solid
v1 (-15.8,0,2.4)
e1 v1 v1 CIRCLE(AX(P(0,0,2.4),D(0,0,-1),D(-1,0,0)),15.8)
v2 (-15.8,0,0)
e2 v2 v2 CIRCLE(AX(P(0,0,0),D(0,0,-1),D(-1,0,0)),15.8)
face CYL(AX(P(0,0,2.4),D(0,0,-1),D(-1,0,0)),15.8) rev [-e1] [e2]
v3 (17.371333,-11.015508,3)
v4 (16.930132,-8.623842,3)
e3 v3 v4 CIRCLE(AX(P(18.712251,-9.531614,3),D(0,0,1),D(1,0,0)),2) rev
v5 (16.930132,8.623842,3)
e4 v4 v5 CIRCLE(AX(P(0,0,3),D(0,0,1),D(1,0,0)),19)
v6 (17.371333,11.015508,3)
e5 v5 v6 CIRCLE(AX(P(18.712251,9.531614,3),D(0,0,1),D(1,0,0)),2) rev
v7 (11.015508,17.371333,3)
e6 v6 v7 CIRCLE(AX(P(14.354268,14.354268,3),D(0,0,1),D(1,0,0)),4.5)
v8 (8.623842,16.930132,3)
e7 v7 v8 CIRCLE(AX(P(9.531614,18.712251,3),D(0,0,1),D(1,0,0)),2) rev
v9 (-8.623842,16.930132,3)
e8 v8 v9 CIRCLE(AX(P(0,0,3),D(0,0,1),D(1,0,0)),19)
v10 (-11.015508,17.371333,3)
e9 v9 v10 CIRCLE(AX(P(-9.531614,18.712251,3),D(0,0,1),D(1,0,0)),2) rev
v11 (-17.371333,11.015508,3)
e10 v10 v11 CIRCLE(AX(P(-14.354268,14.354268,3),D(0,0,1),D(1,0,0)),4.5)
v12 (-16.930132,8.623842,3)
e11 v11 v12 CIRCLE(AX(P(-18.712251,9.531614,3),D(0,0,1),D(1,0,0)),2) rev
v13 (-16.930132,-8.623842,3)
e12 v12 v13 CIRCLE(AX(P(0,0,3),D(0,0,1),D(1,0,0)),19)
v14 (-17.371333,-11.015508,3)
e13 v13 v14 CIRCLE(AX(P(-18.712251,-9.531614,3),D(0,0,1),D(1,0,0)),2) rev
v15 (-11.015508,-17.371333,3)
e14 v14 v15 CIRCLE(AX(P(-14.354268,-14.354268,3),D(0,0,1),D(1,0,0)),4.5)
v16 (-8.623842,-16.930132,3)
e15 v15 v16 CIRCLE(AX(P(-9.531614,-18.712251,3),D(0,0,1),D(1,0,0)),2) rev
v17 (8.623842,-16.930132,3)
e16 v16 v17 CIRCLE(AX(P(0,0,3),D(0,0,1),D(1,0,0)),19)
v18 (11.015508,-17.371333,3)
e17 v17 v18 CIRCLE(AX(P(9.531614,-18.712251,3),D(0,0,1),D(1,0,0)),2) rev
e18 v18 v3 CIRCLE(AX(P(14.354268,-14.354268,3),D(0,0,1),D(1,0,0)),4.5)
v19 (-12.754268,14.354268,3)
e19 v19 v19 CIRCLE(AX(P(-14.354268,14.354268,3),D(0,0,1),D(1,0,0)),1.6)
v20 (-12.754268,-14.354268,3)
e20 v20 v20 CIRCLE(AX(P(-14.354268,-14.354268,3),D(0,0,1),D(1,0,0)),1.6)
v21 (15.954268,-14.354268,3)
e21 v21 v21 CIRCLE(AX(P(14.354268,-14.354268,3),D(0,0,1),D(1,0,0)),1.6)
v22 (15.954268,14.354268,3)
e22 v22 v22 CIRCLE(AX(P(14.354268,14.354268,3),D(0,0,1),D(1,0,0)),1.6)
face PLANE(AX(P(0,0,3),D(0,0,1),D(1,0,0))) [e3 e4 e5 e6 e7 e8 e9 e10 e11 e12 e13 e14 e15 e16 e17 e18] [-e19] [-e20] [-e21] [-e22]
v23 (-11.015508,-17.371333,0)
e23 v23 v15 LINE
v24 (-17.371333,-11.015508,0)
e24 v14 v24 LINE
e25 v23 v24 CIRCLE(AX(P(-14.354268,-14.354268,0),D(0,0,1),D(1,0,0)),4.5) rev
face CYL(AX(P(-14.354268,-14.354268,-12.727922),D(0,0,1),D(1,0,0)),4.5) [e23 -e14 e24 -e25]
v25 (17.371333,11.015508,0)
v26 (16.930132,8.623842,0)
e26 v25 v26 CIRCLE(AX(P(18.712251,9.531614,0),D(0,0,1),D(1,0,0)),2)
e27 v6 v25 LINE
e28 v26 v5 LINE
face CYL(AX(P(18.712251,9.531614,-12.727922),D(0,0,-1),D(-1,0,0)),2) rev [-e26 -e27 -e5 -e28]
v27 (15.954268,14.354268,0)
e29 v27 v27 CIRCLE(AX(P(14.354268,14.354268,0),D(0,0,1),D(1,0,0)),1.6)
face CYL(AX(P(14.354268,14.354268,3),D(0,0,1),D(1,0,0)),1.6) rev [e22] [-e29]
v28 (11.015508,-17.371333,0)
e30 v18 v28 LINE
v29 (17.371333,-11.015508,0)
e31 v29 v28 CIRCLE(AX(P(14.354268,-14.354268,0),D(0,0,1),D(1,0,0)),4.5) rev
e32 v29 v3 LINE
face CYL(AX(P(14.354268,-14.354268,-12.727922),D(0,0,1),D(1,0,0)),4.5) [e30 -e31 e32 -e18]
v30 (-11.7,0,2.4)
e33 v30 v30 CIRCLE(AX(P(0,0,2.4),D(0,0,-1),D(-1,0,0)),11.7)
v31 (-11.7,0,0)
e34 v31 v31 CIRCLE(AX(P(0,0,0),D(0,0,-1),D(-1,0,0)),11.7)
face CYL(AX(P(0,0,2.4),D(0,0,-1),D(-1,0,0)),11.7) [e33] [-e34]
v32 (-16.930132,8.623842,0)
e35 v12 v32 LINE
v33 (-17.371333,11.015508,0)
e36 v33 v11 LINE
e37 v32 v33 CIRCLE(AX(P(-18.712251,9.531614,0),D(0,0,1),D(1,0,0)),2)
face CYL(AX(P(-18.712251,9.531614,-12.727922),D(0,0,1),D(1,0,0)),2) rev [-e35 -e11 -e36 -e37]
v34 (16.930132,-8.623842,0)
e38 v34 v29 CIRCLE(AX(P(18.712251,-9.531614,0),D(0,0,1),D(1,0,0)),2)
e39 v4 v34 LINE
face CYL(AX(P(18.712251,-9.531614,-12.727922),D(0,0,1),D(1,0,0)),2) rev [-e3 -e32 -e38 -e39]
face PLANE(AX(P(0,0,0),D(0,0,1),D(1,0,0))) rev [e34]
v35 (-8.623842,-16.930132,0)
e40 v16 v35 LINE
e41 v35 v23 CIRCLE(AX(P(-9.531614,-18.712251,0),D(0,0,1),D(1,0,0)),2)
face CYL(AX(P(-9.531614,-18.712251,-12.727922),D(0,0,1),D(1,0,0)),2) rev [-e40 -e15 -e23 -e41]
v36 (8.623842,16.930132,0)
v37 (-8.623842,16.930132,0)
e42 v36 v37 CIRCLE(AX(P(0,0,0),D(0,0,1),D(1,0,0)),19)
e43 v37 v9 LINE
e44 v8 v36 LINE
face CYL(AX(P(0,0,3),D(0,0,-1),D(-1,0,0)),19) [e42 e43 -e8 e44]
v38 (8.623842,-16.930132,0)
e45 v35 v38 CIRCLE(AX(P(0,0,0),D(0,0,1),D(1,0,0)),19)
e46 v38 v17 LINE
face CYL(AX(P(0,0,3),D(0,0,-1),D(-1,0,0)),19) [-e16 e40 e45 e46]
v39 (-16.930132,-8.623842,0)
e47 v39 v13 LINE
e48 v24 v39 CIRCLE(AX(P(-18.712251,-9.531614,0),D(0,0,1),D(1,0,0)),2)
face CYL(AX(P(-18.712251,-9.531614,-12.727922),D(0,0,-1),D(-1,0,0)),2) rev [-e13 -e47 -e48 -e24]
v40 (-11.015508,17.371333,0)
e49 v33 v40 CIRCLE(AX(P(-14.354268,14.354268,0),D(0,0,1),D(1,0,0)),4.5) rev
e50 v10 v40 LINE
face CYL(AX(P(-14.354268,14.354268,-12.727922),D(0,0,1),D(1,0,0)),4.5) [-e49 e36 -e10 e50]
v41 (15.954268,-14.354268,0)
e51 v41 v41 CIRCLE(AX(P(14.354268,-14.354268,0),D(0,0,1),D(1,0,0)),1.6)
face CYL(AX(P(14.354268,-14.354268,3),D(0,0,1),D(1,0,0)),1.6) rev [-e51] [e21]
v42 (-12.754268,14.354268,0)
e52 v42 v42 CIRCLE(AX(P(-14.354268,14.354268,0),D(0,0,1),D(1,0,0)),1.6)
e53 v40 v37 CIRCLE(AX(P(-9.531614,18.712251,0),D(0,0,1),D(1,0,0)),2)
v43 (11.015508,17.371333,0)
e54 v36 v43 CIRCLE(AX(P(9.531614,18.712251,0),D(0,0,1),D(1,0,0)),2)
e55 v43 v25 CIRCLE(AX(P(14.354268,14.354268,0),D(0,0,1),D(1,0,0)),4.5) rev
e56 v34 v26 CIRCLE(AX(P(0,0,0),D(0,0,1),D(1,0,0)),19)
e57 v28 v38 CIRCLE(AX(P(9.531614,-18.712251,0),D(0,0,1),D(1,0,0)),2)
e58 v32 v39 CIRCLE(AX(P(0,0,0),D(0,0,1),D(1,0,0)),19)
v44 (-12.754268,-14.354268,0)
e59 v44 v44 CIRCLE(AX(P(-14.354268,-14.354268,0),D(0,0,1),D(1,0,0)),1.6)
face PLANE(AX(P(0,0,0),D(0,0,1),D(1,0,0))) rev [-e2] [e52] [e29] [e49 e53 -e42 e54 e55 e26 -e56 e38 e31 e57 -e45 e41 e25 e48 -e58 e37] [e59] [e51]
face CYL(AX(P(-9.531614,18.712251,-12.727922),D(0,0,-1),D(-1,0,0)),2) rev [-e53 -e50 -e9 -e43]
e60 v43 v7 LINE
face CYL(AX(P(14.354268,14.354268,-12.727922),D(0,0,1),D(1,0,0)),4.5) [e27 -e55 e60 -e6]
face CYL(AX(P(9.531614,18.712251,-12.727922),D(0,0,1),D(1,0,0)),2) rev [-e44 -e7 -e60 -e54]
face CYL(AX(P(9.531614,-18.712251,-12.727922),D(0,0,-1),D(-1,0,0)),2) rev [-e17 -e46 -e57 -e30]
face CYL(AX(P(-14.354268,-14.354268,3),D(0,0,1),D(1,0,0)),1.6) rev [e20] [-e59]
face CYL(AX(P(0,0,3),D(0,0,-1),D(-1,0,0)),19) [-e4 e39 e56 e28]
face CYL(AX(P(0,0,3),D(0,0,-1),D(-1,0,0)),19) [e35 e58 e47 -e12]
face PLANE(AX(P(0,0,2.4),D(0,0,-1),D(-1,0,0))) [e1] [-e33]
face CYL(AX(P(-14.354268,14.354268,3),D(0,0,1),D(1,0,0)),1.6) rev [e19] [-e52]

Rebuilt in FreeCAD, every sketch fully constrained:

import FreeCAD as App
import Part
import Sketcher

V = App.Vector


def edges_at(feature, points):
    """Names of the edges that pass closest to the given points."""
    edges = feature.Shape.Edges
    near = lambda p: min(range(len(edges)), key=lambda i: edges[i].distToShape(Part.Vertex(*p))[0])
    return sorted({f"Edge{near(p) + 1}" for p in points})

doc = App.newDocument("Part")
body = doc.addObject("PartDesign::Body", "Body")

# Sketch on XY plane
sketch1 = doc.addObject("Sketcher::SketchObject", "Sketch")
body.addObject(sketch1)
sketch1.AttachmentSupport = (doc.XY_Plane, [""])
sketch1.MapMode = "FlatFace"
sketch1.addGeometry(Part.Circle(V(0, 0, 0), V(0, 0, 1), 19), False)
sketch1.addConstraint([
    Sketcher.Constraint("Coincident", 0, 3, -1, 1),
    Sketcher.Constraint("Diameter", 0, 38.0),
])
pad1 = doc.addObject("PartDesign::Pad", "Pad")
body.addObject(pad1)
pad1.Profile = sketch1
pad1.Length = 3

# Sketch on XY plane
sketch2 = doc.addObject("Sketcher::SketchObject", "Sketch001")
body.addObject(sketch2)
sketch2.AttachmentSupport = (doc.XY_Plane, [""])
sketch2.MapMode = "FlatFace"
sketch2.addGeometry([
    Part.Circle(V(0, 0, 0), V(0, 0, 1), 16),
    Part.Circle(V(0, 0, 0), V(0, 0, 1), 12),
], False)
sketch2.addConstraint([
    Sketcher.Constraint("Coincident", 0, 3, -1, 1),
    Sketcher.Constraint("Coincident", 1, 3, -1, 1),
    Sketcher.Constraint("Diameter", 0, 31.6),
    Sketcher.Constraint("Diameter", 1, 23.4),
])
pocket1 = doc.addObject("PartDesign::Pocket", "Pocket")
body.addObject(pocket1)
pocket1.Profile = sketch2
pocket1.Length = 2.4
pocket1.Reversed = True

# Sketch on XY plane
sketch3 = doc.addObject("Sketcher::SketchObject", "Sketch002")
body.addObject(sketch3)
sketch3.AttachmentSupport = (doc.XY_Plane, [""])
sketch3.MapMode = "FlatFace"
sketch3.AttachmentOffset = App.Placement(V(0, 0, 3), App.Rotation())
sketch3.addGeometry([
    Part.Circle(V(-14.4, 14.4, 0), V(0, 0, 1), 4.5),
    Part.Circle(V(14.4, 14.4, 0), V(0, 0, 1), 4.5),
    Part.Circle(V(14.4, -14.4, 0), V(0, 0, 1), 4.5),
    Part.Circle(V(-14.4, -14.4, 0), V(0, 0, 1), 4.5),
], False)
sketch3.addConstraint([
    Sketcher.Constraint("Equal", 0, 1),
    Sketcher.Constraint("Equal", 1, 2),
    Sketcher.Constraint("Equal", 2, 3),
    Sketcher.Constraint("Symmetric", 0, 3, 2, 3, -1, 1),
    Sketcher.Constraint("Symmetric", 1, 3, 3, 3, -1, 1),
    Sketcher.Constraint("Symmetric", 0, 3, 1, 3, -2),
    Sketcher.Constraint("Diameter", 0, 9.0),
    Sketcher.Constraint("DistanceX", 0, 3, -1, 1, 14.354268),
    Sketcher.Constraint("DistanceY", -1, 1, 0, 3, 14.354268),
])
pad2 = doc.addObject("PartDesign::Pad", "Pad001")
body.addObject(pad2)
pad2.Profile = sketch3
pad2.Length = 3
pad2.Reversed = True

# Sketch on XY plane
sketch4 = doc.addObject("Sketcher::SketchObject", "Sketch003")
body.addObject(sketch4)
sketch4.AttachmentSupport = (doc.XY_Plane, [""])
sketch4.MapMode = "FlatFace"
sketch4.AttachmentOffset = App.Placement(V(0, 0, 3), App.Rotation())
sketch4.addGeometry([
    Part.Circle(V(-14.4, 14.4, 0), V(0, 0, 1), 1.6),
    Part.Circle(V(-14.4, -14.4, 0), V(0, 0, 1), 1.6),
    Part.Circle(V(14.4, 14.4, 0), V(0, 0, 1), 1.6),
    Part.Circle(V(14.4, -14.4, 0), V(0, 0, 1), 1.6),
], False)
sketch4.addConstraint([
    Sketcher.Constraint("Equal", 0, 1),
    Sketcher.Constraint("Equal", 1, 2),
    Sketcher.Constraint("Equal", 2, 3),
    Sketcher.Constraint("Symmetric", 1, 3, 2, 3, -1, 1),
    Sketcher.Constraint("Symmetric", 0, 3, 3, 3, -1, 1),
    Sketcher.Constraint("Symmetric", 0, 3, 2, 3, -2),
    Sketcher.Constraint("Diameter", 0, 3.2),
    Sketcher.Constraint("DistanceX", 0, 3, -1, 1, 14.354268),
    Sketcher.Constraint("DistanceY", -1, 1, 0, 3, 14.354268),
])
doc.recompute()
hole = doc.addObject("PartDesign::Hole", "Hole")
body.addObject(hole)
hole.Profile = sketch4
hole.ThreadType = "None"
hole.Diameter = 3.2
hole.DepthType = "ThroughAll"
doc.recompute()

fillet = doc.addObject("PartDesign::Fillet", "Fillet")
body.addObject(fillet)
fillet.Base = (hole, edges_at(hole, [
    (-10.182, 16.041, 1.5),
    (-16.041, 10.182, 1.5),
    (16.041, 10.182, 1.5),
    (10.182, 16.041, 1.5),
    (10.182, -16.041, 1.5),
    (16.041, -10.182, 1.5),
    (-16.041, -10.182, 1.5),
    (-10.182, -16.041, 1.5),
]))
fillet.Radius = 2

doc.recompute()
